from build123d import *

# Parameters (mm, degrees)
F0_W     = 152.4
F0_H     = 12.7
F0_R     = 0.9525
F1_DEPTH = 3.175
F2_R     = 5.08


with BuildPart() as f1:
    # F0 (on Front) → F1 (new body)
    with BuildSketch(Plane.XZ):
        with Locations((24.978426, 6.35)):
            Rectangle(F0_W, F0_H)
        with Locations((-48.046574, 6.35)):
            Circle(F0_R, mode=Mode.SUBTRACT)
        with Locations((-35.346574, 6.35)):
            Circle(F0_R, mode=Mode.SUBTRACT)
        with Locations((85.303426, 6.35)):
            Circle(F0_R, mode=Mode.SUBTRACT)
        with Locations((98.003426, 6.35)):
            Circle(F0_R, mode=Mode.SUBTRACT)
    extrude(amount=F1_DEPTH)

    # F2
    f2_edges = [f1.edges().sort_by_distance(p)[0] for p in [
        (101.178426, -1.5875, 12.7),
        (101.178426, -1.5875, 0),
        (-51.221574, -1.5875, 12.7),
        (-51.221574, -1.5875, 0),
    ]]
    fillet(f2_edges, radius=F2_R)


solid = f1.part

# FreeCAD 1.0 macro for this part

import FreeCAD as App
import Part
import Sketcher

V = App.Vector
Q = App.Units.Quantity


def edges_at(feature, points):
    """Names of the edges that pass closest to the given points."""
    edges = feature.Shape.Edges
    near = lambda p: min(range(len(edges)), key=lambda i: edges[i].distToShape(Part.Vertex(*p))[0])
    return sorted({f"Edge{near(p) + 1}" for p in points})

doc = App.newDocument("Part")
params = doc.addObject("Spreadsheet::Sheet", "Params")
for row, (alias, value) in enumerate([
    ("sketch1_width", "6 in"),
    ("sketch1_diameter", "0.075 in"),
    ("sketch1_height", "0.5 in"),
    ("pad1_length", "0.125 in"),
    ("fillet_radius", "0.2 in"),
], start=1):
    params.set(f"A{row}", alias)
    params.set(f"B{row}", "=" + value)
    params.setAlias(f"B{row}", alias)

body = doc.addObject("PartDesign::Body", "Body")

# Sketch on XZ plane
sketch1 = body.newObject("Sketcher::SketchObject", "Sketch")
sketch1.AttachmentSupport = (doc.getObject("XZ_Plane"), [""])
sketch1.MapMode = "FlatFace"
sketch1.addGeometry([
    Part.LineSegment(V(-51.2, 12.7, 0), V(-51.2, 0, 0)),  # 0
    Part.LineSegment(V(-51.2, 0, 0), V(101.2, 0, 0)),  # 1
    Part.LineSegment(V(101.2, 0, 0), V(101.2, 12.7, 0)),  # 2
    Part.LineSegment(V(101.2, 12.7, 0), V(-51.2, 12.7, 0)),  # 3
    Part.Circle(V(-48, 6.3, 0), V(0, 0, 1), 1),  # 4
    Part.Circle(V(-35.3, 6.3, 0), V(0, 0, 1), 1),  # 5
    Part.Circle(V(85.3, 6.3, 0), V(0, 0, 1), 1),  # 6
    Part.Circle(V(98, 6.3, 0), V(0, 0, 1), 1),  # 7
], False)
sketch1.addConstraint([
    Sketcher.Constraint("Coincident", 0, 2, 1, 1),
    Sketcher.Constraint("Coincident", 1, 2, 2, 1),
    Sketcher.Constraint("Coincident", 2, 2, 3, 1),
    Sketcher.Constraint("Coincident", 3, 2, 0, 1),
    Sketcher.Constraint("Vertical", 0),
    Sketcher.Constraint("Horizontal", 1),
    Sketcher.Constraint("Vertical", 2),
    Sketcher.Constraint("Horizontal", 3),
    Sketcher.Constraint("Equal", 4, 5),
    Sketcher.Constraint("Equal", 5, 6),
    Sketcher.Constraint("Equal", 6, 7),
    Sketcher.Constraint("PointOnObject", 0, 2, -1),
    Sketcher.Constraint("Horizontal", 4, 3, 5, 3),
    Sketcher.Constraint("Horizontal", 5, 3, 6, 3),
    Sketcher.Constraint("Horizontal", 6, 3, 7, 3),
    Sketcher.Constraint("DistanceX", 1, 1, 1, 2, Q("6 in")),
    Sketcher.Constraint("Diameter", 4, Q("0.075 in")),
    Sketcher.Constraint("DistanceY", 0, 2, 0, 1, Q("0.5 in")),
    Sketcher.Constraint("DistanceX", 4, 3, 5, 3, Q("0.5 in")),
    Sketcher.Constraint("DistanceX", 6, 3, 7, 3, Q("0.5 in")),
    Sketcher.Constraint("DistanceY", -1, 1, 4, 3, Q("0.25 in")),
    Sketcher.Constraint("DistanceX", 5, 3, 6, 3, Q("4.75 in")),
    Sketcher.Constraint("DistanceX", 0, 2, 4, 3, Q("0.125 in")),
    Sketcher.Constraint("DistanceX", 4, 3, -1, 1, 48.046574),
])
sketch1.setExpression("Constraints[15]", "Params.sketch1_width")
sketch1.setExpression("Constraints[16]", "Params.sketch1_diameter")
sketch1.setExpression("Constraints[17]", "Params.sketch1_height")
pad1 = body.newObject("PartDesign::Pad", "Pad")
pad1.Profile = sketch1
pad1.setExpression("Length", "Params.pad1_length")
doc.recompute()

fillet = body.newObject("PartDesign::Fillet", "Fillet")
fillet.Base = (pad1, edges_at(pad1, [
    (101.178, -1.587, 12.7),
    (101.178, -1.587, 0),
    (-51.222, -1.587, 12.7),
    (-51.222, -1.587, 0),
]))
fillet.setExpression("Radius", "Params.fillet_radius")

doc.recompute()
